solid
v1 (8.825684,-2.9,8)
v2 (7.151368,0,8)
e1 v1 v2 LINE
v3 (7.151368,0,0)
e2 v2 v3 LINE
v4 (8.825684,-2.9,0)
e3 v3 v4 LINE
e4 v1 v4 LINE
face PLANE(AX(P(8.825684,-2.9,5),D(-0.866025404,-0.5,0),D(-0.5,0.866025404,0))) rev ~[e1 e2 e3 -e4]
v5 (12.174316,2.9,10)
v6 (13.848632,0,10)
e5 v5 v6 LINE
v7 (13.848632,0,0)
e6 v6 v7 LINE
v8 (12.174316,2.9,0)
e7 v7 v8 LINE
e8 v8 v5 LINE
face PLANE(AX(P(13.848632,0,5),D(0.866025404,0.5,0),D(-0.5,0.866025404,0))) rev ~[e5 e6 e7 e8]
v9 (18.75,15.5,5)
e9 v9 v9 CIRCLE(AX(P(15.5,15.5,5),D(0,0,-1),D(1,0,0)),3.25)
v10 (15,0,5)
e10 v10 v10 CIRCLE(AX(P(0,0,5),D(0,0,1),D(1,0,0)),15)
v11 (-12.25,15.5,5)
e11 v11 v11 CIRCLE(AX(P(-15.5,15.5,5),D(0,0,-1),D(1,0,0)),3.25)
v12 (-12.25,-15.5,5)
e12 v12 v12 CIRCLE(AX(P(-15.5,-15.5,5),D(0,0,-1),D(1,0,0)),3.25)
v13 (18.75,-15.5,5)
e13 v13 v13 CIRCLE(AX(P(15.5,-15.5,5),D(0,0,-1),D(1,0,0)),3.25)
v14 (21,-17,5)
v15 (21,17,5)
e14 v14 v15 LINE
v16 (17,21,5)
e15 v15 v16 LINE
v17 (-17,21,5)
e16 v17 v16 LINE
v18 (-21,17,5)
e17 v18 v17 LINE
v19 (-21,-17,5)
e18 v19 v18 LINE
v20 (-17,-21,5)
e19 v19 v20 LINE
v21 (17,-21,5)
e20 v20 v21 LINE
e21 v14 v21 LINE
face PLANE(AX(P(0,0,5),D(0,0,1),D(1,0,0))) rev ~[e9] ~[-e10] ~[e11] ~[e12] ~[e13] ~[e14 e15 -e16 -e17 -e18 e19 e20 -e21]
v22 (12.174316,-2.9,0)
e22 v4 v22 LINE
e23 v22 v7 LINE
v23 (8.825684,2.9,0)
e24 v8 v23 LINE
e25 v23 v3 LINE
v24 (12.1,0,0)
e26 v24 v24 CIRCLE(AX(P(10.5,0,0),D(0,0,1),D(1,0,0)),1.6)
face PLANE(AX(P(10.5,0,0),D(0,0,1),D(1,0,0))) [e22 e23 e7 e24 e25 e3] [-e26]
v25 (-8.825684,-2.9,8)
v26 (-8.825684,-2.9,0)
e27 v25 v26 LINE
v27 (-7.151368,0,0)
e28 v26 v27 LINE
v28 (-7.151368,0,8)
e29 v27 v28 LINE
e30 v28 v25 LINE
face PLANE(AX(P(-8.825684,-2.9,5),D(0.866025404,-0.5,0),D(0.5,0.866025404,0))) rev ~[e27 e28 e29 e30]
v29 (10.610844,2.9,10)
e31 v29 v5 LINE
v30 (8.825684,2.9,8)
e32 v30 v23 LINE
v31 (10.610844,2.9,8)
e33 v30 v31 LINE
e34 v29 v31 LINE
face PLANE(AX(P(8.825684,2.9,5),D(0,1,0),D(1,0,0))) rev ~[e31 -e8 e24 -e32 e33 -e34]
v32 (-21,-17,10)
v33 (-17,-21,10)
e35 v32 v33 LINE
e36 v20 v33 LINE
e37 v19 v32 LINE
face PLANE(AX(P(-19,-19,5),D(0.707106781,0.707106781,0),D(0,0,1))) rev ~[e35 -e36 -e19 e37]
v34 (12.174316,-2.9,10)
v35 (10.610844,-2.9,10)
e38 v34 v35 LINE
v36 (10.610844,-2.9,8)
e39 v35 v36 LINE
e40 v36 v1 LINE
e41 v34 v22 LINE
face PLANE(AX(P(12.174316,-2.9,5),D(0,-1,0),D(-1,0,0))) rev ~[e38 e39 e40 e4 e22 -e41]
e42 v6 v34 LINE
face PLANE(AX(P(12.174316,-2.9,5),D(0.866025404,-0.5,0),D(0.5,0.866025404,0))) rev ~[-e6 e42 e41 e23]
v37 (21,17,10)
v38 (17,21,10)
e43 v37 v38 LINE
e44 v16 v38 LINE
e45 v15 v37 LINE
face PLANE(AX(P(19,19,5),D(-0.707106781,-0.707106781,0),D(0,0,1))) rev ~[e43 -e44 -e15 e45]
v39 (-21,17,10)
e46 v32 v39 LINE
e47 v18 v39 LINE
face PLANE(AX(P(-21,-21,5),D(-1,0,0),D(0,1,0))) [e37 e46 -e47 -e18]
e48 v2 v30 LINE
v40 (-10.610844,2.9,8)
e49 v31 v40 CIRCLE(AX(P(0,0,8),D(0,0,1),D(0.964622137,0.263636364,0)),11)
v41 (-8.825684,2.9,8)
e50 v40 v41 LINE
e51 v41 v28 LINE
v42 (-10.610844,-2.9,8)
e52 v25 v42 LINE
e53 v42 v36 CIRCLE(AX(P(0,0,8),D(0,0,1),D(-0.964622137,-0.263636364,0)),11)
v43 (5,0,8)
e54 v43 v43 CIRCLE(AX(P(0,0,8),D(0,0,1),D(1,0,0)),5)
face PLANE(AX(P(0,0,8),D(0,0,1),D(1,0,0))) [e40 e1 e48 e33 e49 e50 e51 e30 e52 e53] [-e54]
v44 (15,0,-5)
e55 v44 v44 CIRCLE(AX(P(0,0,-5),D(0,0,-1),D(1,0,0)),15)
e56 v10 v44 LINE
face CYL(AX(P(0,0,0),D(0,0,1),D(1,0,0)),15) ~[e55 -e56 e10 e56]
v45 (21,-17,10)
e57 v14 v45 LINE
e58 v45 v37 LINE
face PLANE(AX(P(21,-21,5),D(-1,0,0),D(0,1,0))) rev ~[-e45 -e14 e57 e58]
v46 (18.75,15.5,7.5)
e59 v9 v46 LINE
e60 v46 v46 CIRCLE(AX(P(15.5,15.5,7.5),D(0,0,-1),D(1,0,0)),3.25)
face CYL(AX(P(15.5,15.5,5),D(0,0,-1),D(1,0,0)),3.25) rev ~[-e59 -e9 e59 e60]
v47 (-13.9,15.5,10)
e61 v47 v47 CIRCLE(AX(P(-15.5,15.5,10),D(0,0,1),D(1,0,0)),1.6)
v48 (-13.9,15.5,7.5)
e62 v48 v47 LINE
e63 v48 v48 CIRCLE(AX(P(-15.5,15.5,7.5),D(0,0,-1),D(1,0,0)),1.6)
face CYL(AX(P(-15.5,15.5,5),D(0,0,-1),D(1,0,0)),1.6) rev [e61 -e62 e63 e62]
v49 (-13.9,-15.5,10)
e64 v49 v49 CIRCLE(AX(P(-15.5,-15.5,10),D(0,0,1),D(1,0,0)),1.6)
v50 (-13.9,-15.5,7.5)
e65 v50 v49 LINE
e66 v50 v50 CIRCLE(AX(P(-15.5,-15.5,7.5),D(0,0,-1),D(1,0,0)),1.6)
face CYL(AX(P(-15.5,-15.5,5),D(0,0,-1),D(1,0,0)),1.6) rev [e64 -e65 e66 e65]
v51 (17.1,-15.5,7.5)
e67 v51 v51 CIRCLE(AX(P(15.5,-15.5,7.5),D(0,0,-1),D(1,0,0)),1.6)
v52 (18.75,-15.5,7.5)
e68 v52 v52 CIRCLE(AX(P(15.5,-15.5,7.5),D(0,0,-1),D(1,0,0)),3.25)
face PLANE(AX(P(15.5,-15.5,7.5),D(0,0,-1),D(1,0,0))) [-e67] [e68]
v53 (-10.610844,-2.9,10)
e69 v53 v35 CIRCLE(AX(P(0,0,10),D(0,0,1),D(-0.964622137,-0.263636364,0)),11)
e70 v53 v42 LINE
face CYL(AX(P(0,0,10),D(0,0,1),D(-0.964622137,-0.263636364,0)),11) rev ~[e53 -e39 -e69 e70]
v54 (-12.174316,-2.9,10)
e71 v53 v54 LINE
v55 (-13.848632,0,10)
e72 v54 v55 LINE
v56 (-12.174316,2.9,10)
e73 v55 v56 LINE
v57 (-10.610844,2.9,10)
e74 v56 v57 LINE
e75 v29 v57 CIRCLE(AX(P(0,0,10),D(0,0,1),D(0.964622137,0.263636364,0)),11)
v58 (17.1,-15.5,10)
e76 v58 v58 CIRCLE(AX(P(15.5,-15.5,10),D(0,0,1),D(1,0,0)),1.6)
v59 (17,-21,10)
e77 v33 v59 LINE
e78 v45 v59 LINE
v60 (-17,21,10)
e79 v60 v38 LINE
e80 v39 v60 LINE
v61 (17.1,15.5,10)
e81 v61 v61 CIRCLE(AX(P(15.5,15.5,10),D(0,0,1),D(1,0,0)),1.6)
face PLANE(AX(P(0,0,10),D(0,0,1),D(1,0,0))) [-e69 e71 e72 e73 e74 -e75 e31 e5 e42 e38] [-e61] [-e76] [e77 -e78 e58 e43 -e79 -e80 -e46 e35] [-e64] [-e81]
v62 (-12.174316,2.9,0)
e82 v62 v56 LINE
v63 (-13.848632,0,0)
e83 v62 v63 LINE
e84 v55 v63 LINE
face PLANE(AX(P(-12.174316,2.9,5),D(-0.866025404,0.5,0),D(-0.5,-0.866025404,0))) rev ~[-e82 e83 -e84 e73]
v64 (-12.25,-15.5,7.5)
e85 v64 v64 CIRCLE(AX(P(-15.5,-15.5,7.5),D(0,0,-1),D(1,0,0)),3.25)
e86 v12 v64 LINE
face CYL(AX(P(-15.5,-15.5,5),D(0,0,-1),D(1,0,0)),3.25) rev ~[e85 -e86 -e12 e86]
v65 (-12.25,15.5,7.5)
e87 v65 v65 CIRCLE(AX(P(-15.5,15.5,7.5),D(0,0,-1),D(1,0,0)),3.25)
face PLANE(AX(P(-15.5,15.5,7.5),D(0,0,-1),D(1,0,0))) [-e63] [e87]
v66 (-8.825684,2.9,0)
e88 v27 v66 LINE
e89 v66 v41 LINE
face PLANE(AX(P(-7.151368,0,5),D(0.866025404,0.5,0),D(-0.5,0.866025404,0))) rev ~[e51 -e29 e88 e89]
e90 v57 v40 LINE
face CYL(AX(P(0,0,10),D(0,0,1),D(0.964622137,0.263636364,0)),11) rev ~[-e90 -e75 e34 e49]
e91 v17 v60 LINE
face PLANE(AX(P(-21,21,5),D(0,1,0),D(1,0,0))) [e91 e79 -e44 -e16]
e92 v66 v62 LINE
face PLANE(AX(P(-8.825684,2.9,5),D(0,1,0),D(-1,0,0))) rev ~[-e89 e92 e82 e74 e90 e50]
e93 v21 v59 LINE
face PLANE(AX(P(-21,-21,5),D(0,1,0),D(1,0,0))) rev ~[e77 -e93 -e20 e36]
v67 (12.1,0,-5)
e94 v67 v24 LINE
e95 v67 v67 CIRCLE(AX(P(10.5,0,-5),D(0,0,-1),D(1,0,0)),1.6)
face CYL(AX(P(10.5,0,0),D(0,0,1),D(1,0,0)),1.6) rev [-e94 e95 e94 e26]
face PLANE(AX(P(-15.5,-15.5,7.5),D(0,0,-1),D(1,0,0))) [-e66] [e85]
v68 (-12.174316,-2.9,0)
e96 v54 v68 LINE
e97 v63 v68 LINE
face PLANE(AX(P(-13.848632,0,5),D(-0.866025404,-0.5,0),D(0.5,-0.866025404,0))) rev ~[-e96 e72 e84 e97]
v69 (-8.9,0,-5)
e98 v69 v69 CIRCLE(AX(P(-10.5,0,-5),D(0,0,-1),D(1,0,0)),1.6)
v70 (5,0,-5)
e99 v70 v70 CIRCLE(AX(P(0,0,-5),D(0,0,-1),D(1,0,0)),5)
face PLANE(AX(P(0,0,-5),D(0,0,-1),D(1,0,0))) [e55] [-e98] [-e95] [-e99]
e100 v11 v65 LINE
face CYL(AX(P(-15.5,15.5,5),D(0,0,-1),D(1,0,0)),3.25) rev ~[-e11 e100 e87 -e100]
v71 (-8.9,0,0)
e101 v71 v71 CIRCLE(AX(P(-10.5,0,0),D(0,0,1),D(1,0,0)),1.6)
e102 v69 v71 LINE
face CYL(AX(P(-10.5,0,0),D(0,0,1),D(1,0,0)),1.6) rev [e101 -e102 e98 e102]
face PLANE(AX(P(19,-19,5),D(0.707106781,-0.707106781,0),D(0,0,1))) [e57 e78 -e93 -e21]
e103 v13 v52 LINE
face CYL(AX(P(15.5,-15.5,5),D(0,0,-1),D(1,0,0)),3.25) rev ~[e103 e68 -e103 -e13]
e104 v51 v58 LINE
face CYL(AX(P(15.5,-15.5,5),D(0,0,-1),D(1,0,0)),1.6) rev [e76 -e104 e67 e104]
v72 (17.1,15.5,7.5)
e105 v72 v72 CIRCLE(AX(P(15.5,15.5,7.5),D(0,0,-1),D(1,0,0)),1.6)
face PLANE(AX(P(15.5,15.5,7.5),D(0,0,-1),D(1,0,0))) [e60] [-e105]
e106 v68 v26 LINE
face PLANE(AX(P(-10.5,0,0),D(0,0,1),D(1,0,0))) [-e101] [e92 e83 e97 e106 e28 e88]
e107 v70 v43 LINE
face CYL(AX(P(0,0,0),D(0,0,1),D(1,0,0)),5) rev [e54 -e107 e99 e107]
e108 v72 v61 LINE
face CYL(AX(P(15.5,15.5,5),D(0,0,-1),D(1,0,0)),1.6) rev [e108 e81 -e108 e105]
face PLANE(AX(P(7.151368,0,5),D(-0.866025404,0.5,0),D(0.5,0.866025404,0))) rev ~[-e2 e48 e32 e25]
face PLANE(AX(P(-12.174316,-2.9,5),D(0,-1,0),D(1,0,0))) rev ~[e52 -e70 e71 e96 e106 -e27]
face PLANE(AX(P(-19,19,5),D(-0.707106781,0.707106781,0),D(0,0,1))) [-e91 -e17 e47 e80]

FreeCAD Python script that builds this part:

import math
import FreeCAD as App
import Part
import Sketcher

V = App.Vector
Q = App.Units.Quantity


def edges_at(feature, points):
    """Names of the edges that pass closest to the given points."""
    edges = feature.Shape.Edges
    near = lambda p: min(range(len(edges)), key=lambda i: edges[i].distToShape(Part.Vertex(*p))[0])
    return sorted({f"Edge{near(p) + 1}" for p in points})


def add_polygon(sketch, points):
    """Adds a closed chain of lines whose ends are joined by coincident constraints."""
    first, n = sketch.GeometryCount, len(points)
    for a, b in zip(points, points[1:] + points[:1]):
        sketch.addGeometry(Part.LineSegment(App.Vector(*a, 0), App.Vector(*b, 0)), False)
    for i in range(n):
        sketch.addConstraint(Sketcher.Constraint("Coincident", first + i, 2, first + (i + 1) % n, 1))

doc = App.newDocument("Part")
body = doc.addObject("PartDesign::Body", "Body")

sketch1 = body.newObject("Sketcher::SketchObject", "Sketch")
sketch1.AttachmentSupport = (doc.getObject("XY_Plane"), [""])
sketch1.MapMode = "FlatFace"
sketch1.addGeometry([
    Part.Circle(V(0, 0, 0), V(0, 0, 1), 15),
    Part.Circle(V(-10.5, 0, 0), V(0, 0, 1), 1.6),
    Part.Circle(V(0, 0, 0), V(0, 0, 1), 5),
    Part.Circle(V(10.5, 0, 0), V(0, 0, 1), 1.6),
], False)
sketch1.addConstraint([
    Sketcher.Constraint("Coincident", 0, 3, -1, 1),
    Sketcher.Constraint("Coincident", 2, 3, -1, 1),
    Sketcher.Constraint("Equal", 1, 3),
    Sketcher.Constraint("Symmetric", 1, 3, 3, 3, -1, 1),
    Sketcher.Constraint("PointOnObject", 1, 3, -1),
    Sketcher.Constraint("Diameter", 0, 30.0),
    Sketcher.Constraint("Diameter", 2, 10.0),
    Sketcher.Constraint("Diameter", 1, 3.2),
    Sketcher.Constraint("DistanceX", 1, 3, 3, 3, 21.0),
])
pad1 = body.newObject("PartDesign::Pad", "Pad")
pad1.Profile = sketch1
pad1.Length = 5

sketch2 = body.newObject("Sketcher::SketchObject", "Sketch001")
sketch2.AttachmentSupport = (doc.getObject("XY_Plane"), [""])
sketch2.MapMode = "FlatFace"
sketch2.AttachmentOffset = App.Placement(V(0, 0, 5), App.Rotation())
add_polygon(sketch2, [(-21, 21), (-21, -21), (21, -21), (21, 21)])
sketch2.addGeometry(Part.Circle(V(-15.5, -15.5, 0), V(0, 0, 1), 1.6), False)
sketch2.addGeometry(Part.Circle(V(15.5, -15.5, 0), V(0, 0, 1), 1.6), False)
add_polygon(sketch2, [(-12.2, -2.9), (-13.8, 0), (-12.2, 2.9), (-8.8, 2.9), (-7.2, 0), (-8.8, -2.9)])
sketch2.addGeometry(Part.Circle(V(-15.5, 15.5, 0), V(0, 0, 1), 1.6), False)
sketch2.addGeometry(Part.Circle(V(0, 0, 0), V(0, 0, 1), 5), False)
add_polygon(sketch2, [(12.2, 2.9), (13.8, 0), (12.2, -2.9), (8.8, -2.9), (7.2, 0), (8.8, 2.9)])
sketch2.addGeometry(Part.Circle(V(15.5, 15.5, 0), V(0, 0, 1), 1.6), False)
sketch2.addConstraint([
    Sketcher.Constraint("Vertical", 0),
    Sketcher.Constraint("Horizontal", 1),
    Sketcher.Constraint("Vertical", 2),
    Sketcher.Constraint("Horizontal", 3),
    Sketcher.Constraint("Horizontal", 8),
    Sketcher.Constraint("Horizontal", 11),
    Sketcher.Constraint("Horizontal", 16),
    Sketcher.Constraint("Horizontal", 19),
    Sketcher.Constraint("Coincident", 13, 3, -1, 1),
    Sketcher.Constraint("Equal", 4, 5),
    Sketcher.Constraint("Equal", 5, 12),
    Sketcher.Constraint("Equal", 12, 20),
    Sketcher.Constraint("Symmetric", 5, 3, 12, 3, -1, 1),
    Sketcher.Constraint("Symmetric", 4, 3, 20, 3, -1, 1),
    Sketcher.Constraint("Symmetric", 0, 2, 2, 2, -1, 1),
    Sketcher.Constraint("Symmetric", 6, 2, 14, 2, -1, 1),
    Sketcher.Constraint("Symmetric", 7, 2, 15, 2, -1, 1),
    Sketcher.Constraint("Symmetric", 9, 2, 17, 2, -1, 1),
    Sketcher.Constraint("Symmetric", 10, 2, 18, 2, -1, 1),
    Sketcher.Constraint("Symmetric", 4, 3, 5, 3, -2),
    Sketcher.Constraint("Symmetric", 11, 2, 15, 2, -2),
    Sketcher.Constraint("PointOnObject", 6, 2, -1),
    Sketcher.Constraint("PointOnObject", 9, 2, -1),
    Sketcher.Constraint("Parallel", 6, 9),
    Sketcher.Constraint("Parallel", 7, 10),
    Sketcher.Constraint("Parallel", 9, 14),
    Sketcher.Constraint("Parallel", 14, 17),
    Sketcher.Constraint("Equal", 3, 0),
    Sketcher.Constraint("Diameter", 13, 10.0),
    Sketcher.Constraint("Diameter", 4, 3.2),
    Sketcher.Constraint("DistanceX", 1, 1, 1, 2, 42.0),
    Sketcher.Constraint("Angle", 6, Q("120 deg")),
    Sketcher.Constraint("DistanceX", 4, 3, 5, 3, 31.0),
    Sketcher.Constraint("DistanceY", 4, 3, 12, 3, 31.0),
    Sketcher.Constraint("DistanceX", 9, 2, 14, 2, 21.0),
    Sketcher.Constraint("DistanceY", -1, 1, 7, 2, 2.9),
    Sketcher.Constraint("DistanceX", 8, 1, 8, 2, 3.348632),
])
pad2 = body.newObject("PartDesign::Pad", "Pad001")
pad2.Profile = sketch2
pad2.Length = 5
doc.recompute()

chamfer = body.newObject("PartDesign::Chamfer", "Chamfer")
chamfer.Base = (pad2, edges_at(pad2, [
    (21, 21, 7.5),
    (21, -21, 7.5),
    (-21, -21, 7.5),
    (-21, 21, 7.5),
]))
chamfer.Size = 4

sketch3 = body.newObject("Sketcher::SketchObject", "Sketch002")
sketch3.AttachmentSupport = (doc.getObject("XY_Plane"), [""])
sketch3.MapMode = "FlatFace"
sketch3.AttachmentOffset = App.Placement(V(0, 0, 10), App.Rotation())
sketch3.addGeometry([
    Part.LineSegment(V(8.8, 2.9, 0), V(10.6, 2.9, 0)),
    Part.ArcOfCircle(Part.Circle(V(0, 0, 0), V(0, 0, 1), 11), math.radians(15), math.radians(165)),
    Part.LineSegment(V(-10.6, 2.9, 0), V(-8.8, 2.9, 0)),
    Part.LineSegment(V(-8.8, 2.9, 0), V(-7.2, 0, 0)),
    Part.LineSegment(V(-7.2, 0, 0), V(-8.8, -2.9, 0)),
    Part.LineSegment(V(-8.8, -2.9, 0), V(-10.6, -2.9, 0)),
    Part.ArcOfCircle(Part.Circle(V(0, 0, 0), V(0, 0, 1), 11), math.radians(-165), math.radians(-15)),
    Part.LineSegment(V(10.6, -2.9, 0), V(8.8, -2.9, 0)),
    Part.LineSegment(V(8.8, -2.9, 0), V(7.2, 0, 0)),
    Part.LineSegment(V(7.2, 0, 0), V(8.8, 2.9, 0)),
    Part.Circle(V(0, 0, 0), V(0, 0, 1), 5),
], False)
sketch3.addConstraint([
    Sketcher.Constraint("Coincident", 0, 2, 1, 1),
    Sketcher.Constraint("Coincident", 1, 2, 2, 1),
    Sketcher.Constraint("Coincident", 2, 2, 3, 1),
    Sketcher.Constraint("Coincident", 3, 2, 4, 1),
    Sketcher.Constraint("Coincident", 4, 2, 5, 1),
    Sketcher.Constraint("Coincident", 5, 2, 6, 1),
    Sketcher.Constraint("Coincident", 6, 2, 7, 1),
    Sketcher.Constraint("Coincident", 7, 2, 8, 1),
    Sketcher.Constraint("Coincident", 8, 2, 9, 1),
    Sketcher.Constraint("Coincident", 9, 2, 0, 1),
    Sketcher.Constraint("Horizontal", 0),
    Sketcher.Constraint("Horizontal", 2),
    Sketcher.Constraint("Horizontal", 5),
    Sketcher.Constraint("Horizontal", 7),
    Sketcher.Constraint("Coincident", 1, 3, -1, 1),
    Sketcher.Constraint("Coincident", 6, 3, -1, 1),
    Sketcher.Constraint("Coincident", 10, 3, -1, 1),
    Sketcher.Constraint("Equal", 1, 6),
    Sketcher.Constraint("Symmetric", 2, 2, 7, 2, -1, 1),
    Sketcher.Constraint("Symmetric", 3, 2, 8, 2, -1, 1),
    Sketcher.Constraint("Symmetric", 4, 2, 9, 2, -1, 1),
    Sketcher.Constraint("Symmetric", 4, 2, 7, 2, -2),
    Sketcher.Constraint("PointOnObject", 3, 2, -1),
    Sketcher.Constraint("Diameter", 10, 10.0),
    Sketcher.Constraint("Radius", 1, 11.0),
    Sketcher.Constraint("Angle", 3, Q("-60 deg")),
    Sketcher.Constraint("DistanceY", -1, 1, 0, 2, 2.9),
    Sketcher.Constraint("DistanceX", 0, 1, 0, 2, 1.785159),
])
pocket1 = body.newObject("PartDesign::Pocket", "Pocket")
pocket1.Profile = sketch3
pocket1.Length = 2

sketch4 = body.newObject("Sketcher::SketchObject", "Sketch003")
sketch4.AttachmentSupport = (doc.getObject("XY_Plane"), [""])
sketch4.MapMode = "FlatFace"
sketch4.addGeometry([
    Part.Circle(V(0, 0, 0), V(0, 0, 1), 15),
    Part.Circle(V(-10.5, 0, 0), V(0, 0, 1), 1.6),
    Part.Circle(V(0, 0, 0), V(0, 0, 1), 5),
    Part.Circle(V(10.5, 0, 0), V(0, 0, 1), 1.6),
], False)
sketch4.addConstraint([
    Sketcher.Constraint("Coincident", 0, 3, -1, 1),
    Sketcher.Constraint("Coincident", 2, 3, -1, 1),
    Sketcher.Constraint("Equal", 1, 3),
    Sketcher.Constraint("Symmetric", 1, 3, 3, 3, -1, 1),
    Sketcher.Constraint("PointOnObject", 1, 3, -1),
    Sketcher.Constraint("Diameter", 0, 30.0),
    Sketcher.Constraint("Diameter", 2, 10.0),
    Sketcher.Constraint("Diameter", 1, 3.2),
    Sketcher.Constraint("DistanceX", 1, 3, 3, 3, 21.0),
])
pad3 = body.newObject("PartDesign::Pad", "Pad002")
pad3.Profile = sketch4
pad3.Length = 5
pad3.Reversed = True

sketch5 = body.newObject("Sketcher::SketchObject", "Sketch004")
sketch5.AttachmentSupport = (doc.getObject("XY_Plane"), [""])
sketch5.MapMode = "FlatFace"
sketch5.AttachmentOffset = App.Placement(V(0, 0, 5), App.Rotation())
add_polygon(sketch5, [(-12.2, 2.9), (-13.8, 0), (-12.2, -2.9), (-8.8, -2.9), (-7.2, 0), (-8.8, 2.9)])
sketch5.addGeometry(Part.Circle(V(-10.5, 0, 0), V(0, 0, 1), 1.6), False)
add_polygon(sketch5, [(8.8, -2.9), (12.2, -2.9), (13.8, 0), (12.2, 2.9), (8.8, 2.9), (7.2, 0)])
sketch5.addConstraint([
    Sketcher.Constraint("Horizontal", 2),
    Sketcher.Constraint("Horizontal", 5),
    Sketcher.Constraint("Horizontal", 7),
    Sketcher.Constraint("Horizontal", 10),
    Sketcher.Constraint("Symmetric", 5, 2, 7, 2, -1, 1),
    Sketcher.Constraint("Symmetric", 0, 2, 8, 2, -1, 1),
    Sketcher.Constraint("Symmetric", 1, 2, 9, 2, -1, 1),
    Sketcher.Constraint("Symmetric", 3, 2, 11, 2, -1, 1),
    Sketcher.Constraint("Symmetric", 1, 2, 7, 2, -2),
    Sketcher.Constraint("PointOnObject", 6, 3, -1),
    Sketcher.Constraint("PointOnObject", 0, 2, -1),
    Sketcher.Constraint("PointOnObject", 3, 2, -1),
    Sketcher.Constraint("Parallel", 0, 3),
    Sketcher.Constraint("Parallel", 1, 4),
    Sketcher.Constraint("Parallel", 8, 11),
    Sketcher.Constraint("Parallel", 9, 12),
    Sketcher.Constraint("Diameter", 6, 3.2),
    Sketcher.Constraint("Angle", 0, Q("-120 deg")),
    Sketcher.Constraint("DistanceX", 2, 2, 7, 2, 21.0),
    Sketcher.Constraint("DistanceX", 6, 3, -1, 1, 10.5),
    Sketcher.Constraint("DistanceY", 1, 2, -1, 1, 2.9),
    Sketcher.Constraint("DistanceX", 2, 1, 2, 2, 3.348632),
])
pocket2 = body.newObject("PartDesign::Pocket", "Pocket001")
pocket2.Profile = sketch5
pocket2.Length = 5

sketch6 = body.newObject("Sketcher::SketchObject", "Sketch005")
sketch6.AttachmentSupport = (doc.getObject("XY_Plane"), [""])
sketch6.MapMode = "FlatFace"
sketch6.AttachmentOffset = App.Placement(V(0, 0, 5), App.Rotation())
sketch6.addGeometry([
    Part.Circle(V(15.5, -15.5, 0), V(0, 0, 1), 3.2),
    Part.Circle(V(15.5, -15.5, 0), V(0, 0, 1), 1.6),
    Part.Circle(V(15.5, 15.5, 0), V(0, 0, 1), 3.2),
    Part.Circle(V(15.5, 15.5, 0), V(0, 0, 1), 1.6),
    Part.Circle(V(-15.5, 15.5, 0), V(0, 0, 1), 3.2),
    Part.Circle(V(-15.5, 15.5, 0), V(0, 0, 1), 1.6),
    Part.Circle(V(-15.5, -15.5, 0), V(0, 0, 1), 3.2),
    Part.Circle(V(-15.5, -15.5, 0), V(0, 0, 1), 1.6),
], False)
sketch6.addConstraint([
    Sketcher.Constraint("Coincident", 1, 3, 0, 3),
    Sketcher.Constraint("Coincident", 3, 3, 2, 3),
    Sketcher.Constraint("Coincident", 5, 3, 4, 3),
    Sketcher.Constraint("Coincident", 7, 3, 6, 3),
    Sketcher.Constraint("Equal", 0, 2),
    Sketcher.Constraint("Equal", 1, 3),
    Sketcher.Constraint("Equal", 2, 4),
    Sketcher.Constraint("Equal", 3, 5),
    Sketcher.Constraint("Equal", 4, 6),
    Sketcher.Constraint("Equal", 5, 7),
    Sketcher.Constraint("Symmetric", 0, 3, 4, 3, -1, 1),
    Sketcher.Constraint("Symmetric", 2, 3, 6, 3, -1, 1),
    Sketcher.Constraint("Symmetric", 2, 3, 4, 3, -2),
    Sketcher.Constraint("Diameter", 0, 6.5),
    Sketcher.Constraint("Diameter", 1, 3.2),
    Sketcher.Constraint("DistanceY", 0, 3, 2, 3, 31.0),
    Sketcher.Constraint("DistanceX", 4, 3, 2, 3, 31.0),
])
pocket3 = body.newObject("PartDesign::Pocket", "Pocket002")
pocket3.Profile = sketch6
pocket3.Length = 2.5
pocket3.Reversed = True

doc.recompute()
